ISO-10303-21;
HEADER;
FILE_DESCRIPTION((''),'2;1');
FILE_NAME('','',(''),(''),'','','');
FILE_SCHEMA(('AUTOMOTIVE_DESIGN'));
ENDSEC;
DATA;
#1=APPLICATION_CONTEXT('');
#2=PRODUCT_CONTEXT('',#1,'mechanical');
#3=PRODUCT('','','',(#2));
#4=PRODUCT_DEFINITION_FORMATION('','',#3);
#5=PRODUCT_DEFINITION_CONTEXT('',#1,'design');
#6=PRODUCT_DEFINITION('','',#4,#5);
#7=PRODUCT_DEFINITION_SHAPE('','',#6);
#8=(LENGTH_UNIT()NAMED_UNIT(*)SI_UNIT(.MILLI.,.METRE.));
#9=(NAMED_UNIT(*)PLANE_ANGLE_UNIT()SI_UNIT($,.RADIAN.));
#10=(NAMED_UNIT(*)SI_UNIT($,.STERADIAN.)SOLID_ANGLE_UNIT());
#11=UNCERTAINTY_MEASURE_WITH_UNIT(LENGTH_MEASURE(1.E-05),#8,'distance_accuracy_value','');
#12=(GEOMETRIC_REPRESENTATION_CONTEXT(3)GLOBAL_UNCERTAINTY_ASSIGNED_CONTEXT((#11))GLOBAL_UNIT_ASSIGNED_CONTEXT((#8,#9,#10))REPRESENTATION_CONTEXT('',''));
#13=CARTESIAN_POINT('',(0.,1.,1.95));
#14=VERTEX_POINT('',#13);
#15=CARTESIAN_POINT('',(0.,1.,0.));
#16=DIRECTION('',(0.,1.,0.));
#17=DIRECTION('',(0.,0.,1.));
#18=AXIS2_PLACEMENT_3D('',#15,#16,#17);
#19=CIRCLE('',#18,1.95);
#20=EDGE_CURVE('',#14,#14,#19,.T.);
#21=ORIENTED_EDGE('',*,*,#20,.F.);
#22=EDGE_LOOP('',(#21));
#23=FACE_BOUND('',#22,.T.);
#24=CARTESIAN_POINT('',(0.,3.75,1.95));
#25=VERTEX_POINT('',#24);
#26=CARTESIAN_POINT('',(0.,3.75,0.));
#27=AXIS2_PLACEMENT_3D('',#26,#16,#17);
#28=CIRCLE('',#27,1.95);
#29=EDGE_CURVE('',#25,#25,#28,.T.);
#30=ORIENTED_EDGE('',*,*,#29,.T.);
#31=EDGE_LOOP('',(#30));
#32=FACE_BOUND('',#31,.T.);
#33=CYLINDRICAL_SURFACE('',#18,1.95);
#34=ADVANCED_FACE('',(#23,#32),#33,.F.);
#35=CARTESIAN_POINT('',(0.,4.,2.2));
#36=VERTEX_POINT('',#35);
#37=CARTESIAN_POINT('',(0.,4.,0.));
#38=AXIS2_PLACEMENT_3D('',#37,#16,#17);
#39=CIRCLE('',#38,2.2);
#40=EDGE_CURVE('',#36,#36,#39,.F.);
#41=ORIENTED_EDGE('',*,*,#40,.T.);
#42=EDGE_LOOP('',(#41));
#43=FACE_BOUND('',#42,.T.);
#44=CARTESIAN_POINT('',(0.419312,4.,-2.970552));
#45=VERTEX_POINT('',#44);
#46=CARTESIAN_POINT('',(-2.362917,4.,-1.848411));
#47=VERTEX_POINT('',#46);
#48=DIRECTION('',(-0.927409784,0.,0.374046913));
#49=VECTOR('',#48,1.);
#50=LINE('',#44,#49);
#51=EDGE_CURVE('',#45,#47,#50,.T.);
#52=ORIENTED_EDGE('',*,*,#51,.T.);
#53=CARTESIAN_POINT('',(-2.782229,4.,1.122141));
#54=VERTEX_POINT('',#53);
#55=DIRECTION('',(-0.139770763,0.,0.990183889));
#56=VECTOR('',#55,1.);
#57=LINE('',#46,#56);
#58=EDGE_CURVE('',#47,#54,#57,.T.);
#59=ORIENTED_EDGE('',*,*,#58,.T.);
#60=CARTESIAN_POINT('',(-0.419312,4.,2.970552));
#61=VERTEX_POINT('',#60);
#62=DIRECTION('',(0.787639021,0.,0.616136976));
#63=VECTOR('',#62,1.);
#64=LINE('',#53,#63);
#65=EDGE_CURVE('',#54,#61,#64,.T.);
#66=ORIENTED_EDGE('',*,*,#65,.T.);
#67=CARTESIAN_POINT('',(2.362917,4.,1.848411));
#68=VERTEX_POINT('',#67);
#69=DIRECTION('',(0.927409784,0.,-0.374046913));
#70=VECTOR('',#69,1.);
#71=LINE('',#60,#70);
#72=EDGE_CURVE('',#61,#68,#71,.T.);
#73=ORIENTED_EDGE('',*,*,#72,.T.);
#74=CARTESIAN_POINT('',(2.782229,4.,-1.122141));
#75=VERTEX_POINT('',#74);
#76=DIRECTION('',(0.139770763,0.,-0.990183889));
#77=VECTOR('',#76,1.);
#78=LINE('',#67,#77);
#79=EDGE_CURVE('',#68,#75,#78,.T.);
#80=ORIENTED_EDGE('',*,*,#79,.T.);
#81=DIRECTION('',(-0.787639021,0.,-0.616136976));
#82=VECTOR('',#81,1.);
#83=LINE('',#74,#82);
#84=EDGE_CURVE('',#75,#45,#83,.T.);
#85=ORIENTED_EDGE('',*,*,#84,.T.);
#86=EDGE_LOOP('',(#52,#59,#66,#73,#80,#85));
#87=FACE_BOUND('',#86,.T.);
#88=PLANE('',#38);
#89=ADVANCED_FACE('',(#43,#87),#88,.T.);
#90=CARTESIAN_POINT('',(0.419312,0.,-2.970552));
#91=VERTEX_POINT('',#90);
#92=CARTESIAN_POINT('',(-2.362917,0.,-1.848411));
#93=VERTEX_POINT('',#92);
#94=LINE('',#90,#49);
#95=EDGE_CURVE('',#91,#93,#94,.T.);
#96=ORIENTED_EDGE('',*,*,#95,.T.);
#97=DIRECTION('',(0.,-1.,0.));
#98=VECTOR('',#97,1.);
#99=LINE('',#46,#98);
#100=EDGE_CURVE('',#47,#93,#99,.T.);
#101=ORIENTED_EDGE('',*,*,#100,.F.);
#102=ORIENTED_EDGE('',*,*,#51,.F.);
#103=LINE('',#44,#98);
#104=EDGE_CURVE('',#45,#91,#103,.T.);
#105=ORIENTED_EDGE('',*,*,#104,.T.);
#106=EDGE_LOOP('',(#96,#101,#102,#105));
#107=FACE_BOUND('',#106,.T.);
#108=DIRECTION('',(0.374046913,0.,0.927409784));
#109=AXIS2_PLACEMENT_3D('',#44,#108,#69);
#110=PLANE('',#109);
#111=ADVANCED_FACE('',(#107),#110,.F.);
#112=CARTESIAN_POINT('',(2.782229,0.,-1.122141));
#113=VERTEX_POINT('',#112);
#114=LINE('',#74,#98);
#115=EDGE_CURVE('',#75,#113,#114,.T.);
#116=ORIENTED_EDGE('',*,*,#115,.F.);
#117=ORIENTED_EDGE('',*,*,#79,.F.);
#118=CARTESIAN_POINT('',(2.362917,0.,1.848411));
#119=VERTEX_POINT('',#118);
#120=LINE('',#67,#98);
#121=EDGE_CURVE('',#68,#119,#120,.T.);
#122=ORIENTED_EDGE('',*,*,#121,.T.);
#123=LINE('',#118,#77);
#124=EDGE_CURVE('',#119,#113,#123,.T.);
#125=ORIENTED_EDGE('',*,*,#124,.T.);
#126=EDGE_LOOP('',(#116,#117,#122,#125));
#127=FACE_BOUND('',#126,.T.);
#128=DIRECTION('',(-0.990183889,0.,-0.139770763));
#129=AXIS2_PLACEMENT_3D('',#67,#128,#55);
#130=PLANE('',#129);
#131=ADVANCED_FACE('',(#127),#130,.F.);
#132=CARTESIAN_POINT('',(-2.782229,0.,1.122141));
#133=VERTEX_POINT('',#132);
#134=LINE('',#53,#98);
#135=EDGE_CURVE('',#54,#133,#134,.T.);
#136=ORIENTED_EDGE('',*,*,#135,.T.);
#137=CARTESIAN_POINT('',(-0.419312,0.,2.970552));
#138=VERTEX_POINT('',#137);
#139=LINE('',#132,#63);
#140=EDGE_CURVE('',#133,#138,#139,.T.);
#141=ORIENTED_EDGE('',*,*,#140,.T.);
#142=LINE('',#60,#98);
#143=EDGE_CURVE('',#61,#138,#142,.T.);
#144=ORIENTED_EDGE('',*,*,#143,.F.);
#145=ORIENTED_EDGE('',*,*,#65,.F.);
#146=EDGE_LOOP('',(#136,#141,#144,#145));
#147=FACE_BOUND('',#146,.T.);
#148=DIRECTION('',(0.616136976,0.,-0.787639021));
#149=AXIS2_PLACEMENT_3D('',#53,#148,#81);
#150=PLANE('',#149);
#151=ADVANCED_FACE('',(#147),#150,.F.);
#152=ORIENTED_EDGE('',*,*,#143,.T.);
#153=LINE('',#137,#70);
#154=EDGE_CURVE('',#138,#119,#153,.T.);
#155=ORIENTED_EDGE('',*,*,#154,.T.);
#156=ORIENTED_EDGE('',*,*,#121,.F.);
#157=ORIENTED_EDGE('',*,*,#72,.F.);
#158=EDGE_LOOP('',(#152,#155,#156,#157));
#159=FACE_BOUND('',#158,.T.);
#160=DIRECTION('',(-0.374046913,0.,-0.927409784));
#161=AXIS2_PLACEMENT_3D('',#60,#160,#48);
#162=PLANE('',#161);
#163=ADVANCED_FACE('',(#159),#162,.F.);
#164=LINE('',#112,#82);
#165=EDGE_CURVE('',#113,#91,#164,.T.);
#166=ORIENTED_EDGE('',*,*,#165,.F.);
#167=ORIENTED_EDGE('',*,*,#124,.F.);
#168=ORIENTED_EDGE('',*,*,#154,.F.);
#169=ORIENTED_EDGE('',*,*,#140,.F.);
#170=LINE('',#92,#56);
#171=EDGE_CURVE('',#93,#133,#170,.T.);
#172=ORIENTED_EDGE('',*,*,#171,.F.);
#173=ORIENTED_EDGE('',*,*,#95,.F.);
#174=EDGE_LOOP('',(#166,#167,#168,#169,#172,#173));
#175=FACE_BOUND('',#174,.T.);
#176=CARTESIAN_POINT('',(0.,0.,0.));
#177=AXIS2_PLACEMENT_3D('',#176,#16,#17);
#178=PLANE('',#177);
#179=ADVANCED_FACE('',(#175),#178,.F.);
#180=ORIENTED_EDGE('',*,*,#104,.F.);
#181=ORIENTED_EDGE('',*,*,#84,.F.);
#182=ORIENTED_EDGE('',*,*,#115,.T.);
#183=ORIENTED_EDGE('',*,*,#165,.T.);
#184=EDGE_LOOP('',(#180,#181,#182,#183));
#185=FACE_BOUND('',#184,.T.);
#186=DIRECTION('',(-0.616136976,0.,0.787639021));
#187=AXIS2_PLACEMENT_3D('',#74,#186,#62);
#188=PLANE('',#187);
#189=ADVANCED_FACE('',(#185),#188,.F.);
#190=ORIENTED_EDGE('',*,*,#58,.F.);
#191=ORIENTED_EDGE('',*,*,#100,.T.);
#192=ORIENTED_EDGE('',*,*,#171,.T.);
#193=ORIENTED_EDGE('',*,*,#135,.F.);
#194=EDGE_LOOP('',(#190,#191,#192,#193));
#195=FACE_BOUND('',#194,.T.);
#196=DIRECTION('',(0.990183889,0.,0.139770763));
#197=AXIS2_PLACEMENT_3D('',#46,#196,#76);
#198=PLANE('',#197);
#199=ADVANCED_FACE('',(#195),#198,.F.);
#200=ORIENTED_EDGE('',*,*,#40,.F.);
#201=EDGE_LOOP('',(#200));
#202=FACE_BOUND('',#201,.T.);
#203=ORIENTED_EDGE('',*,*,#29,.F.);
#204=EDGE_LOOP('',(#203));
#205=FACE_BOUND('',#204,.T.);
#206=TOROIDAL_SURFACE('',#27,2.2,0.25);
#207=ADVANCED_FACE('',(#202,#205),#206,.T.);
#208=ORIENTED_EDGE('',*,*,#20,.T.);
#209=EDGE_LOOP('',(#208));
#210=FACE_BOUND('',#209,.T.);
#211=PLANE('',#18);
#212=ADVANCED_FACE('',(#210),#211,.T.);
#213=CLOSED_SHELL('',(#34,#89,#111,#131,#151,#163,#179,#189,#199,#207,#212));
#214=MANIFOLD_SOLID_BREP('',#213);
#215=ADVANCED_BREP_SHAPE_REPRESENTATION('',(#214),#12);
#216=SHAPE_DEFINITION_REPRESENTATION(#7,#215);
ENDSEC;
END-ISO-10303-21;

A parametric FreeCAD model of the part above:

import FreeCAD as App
import Part
import Sketcher


def edges_at(feature, points):
    """Names of the edges that pass closest to the given points."""
    edges = feature.Shape.Edges
    near = lambda p: min(range(len(edges)), key=lambda i: edges[i].distToShape(Part.Vertex(*p))[0])
    return sorted({f"Edge{near(p) + 1}" for p in points})

doc = App.newDocument("Part")
body = doc.addObject("PartDesign::Body", "Body")

# Sketch on XZ plane
sketch1 = body.newObject("Sketcher::SketchObject", "Sketch")
sketch1.AttachmentSupport = (doc.getObject("XZ_Plane"), [""])
sketch1.MapMode = "FlatFace"
sketch1.addGeometry([
    Part.LineSegment(App.Vector(2.4, 1.8, 0), App.Vector(2.8, -1.1, 0)),  # 0
    Part.LineSegment(App.Vector(2.8, -1.1, 0), App.Vector(0.4, -3, 0)),  # 1
    Part.LineSegment(App.Vector(0.4, -3, 0), App.Vector(-2.4, -1.8, 0)),  # 2
    Part.LineSegment(App.Vector(-2.4, -1.8, 0), App.Vector(-2.8, 1.1, 0)),  # 3
    Part.LineSegment(App.Vector(-2.8, 1.1, 0), App.Vector(-0.4, 3, 0)),  # 4
    Part.LineSegment(App.Vector(-0.4, 3, 0), App.Vector(2.4, 1.8, 0)),  # 5
], False)
sketch1.addConstraint([
    Sketcher.Constraint("Coincident", 0, 2, 1, 1),
    Sketcher.Constraint("Coincident", 1, 2, 2, 1),
    Sketcher.Constraint("Coincident", 2, 2, 3, 1),
    Sketcher.Constraint("Coincident", 3, 2, 4, 1),
    Sketcher.Constraint("Coincident", 4, 2, 5, 1),
    Sketcher.Constraint("Coincident", 5, 2, 0, 1),
    Sketcher.Constraint("Symmetric", 0, 2, 3, 2, -1, 1),
    Sketcher.Constraint("Symmetric", 1, 2, 4, 2, -1, 1),
    Sketcher.Constraint("Symmetric", 2, 2, 5, 2, -1, 1),
    Sketcher.Constraint("Equal", 0, 1),
    Sketcher.Constraint("Equal", 1, 2),
    Sketcher.Constraint("Distance", 0, 3.0),
    Sketcher.Constraint("DistanceX", -1, 1, 0, 2, 2.782229),
    Sketcher.Constraint("DistanceY", 0, 2, -1, 1, 1.122141),
    Sketcher.Constraint("DistanceY", 1, 2, -1, 1, 2.970552),
])
pad1 = body.newObject("PartDesign::Pad", "Pad")
pad1.Profile = sketch1
pad1.Length = 4
pad1.Reversed = True

# Sketch on XZ plane
sketch2 = body.newObject("Sketcher::SketchObject", "Sketch001")
sketch2.AttachmentSupport = (doc.getObject("XZ_Plane"), [""])
sketch2.MapMode = "FlatFace"
sketch2.AttachmentOffset = App.Placement(App.Vector(0, 0, -4), App.Rotation())
sketch2.addGeometry(Part.Circle(App.Vector(0, 0, 0), App.Vector(0, 0, 1), 1.9), False)
sketch2.addConstraint([
    Sketcher.Constraint("Coincident", 0, 3, -1, 1),
    Sketcher.Constraint("Diameter", 0, 3.9),
])
pocket1 = body.newObject("PartDesign::Pocket", "Pocket")
pocket1.Profile = sketch2
pocket1.Length = 3
pocket1.Reversed = True
doc.recompute()

fillet = body.newObject("PartDesign::Fillet", "Fillet")
fillet.Base = (pocket1, edges_at(pocket1, [(-1.95, 4, 0)]))
fillet.Radius = 0.25

doc.recompute()
